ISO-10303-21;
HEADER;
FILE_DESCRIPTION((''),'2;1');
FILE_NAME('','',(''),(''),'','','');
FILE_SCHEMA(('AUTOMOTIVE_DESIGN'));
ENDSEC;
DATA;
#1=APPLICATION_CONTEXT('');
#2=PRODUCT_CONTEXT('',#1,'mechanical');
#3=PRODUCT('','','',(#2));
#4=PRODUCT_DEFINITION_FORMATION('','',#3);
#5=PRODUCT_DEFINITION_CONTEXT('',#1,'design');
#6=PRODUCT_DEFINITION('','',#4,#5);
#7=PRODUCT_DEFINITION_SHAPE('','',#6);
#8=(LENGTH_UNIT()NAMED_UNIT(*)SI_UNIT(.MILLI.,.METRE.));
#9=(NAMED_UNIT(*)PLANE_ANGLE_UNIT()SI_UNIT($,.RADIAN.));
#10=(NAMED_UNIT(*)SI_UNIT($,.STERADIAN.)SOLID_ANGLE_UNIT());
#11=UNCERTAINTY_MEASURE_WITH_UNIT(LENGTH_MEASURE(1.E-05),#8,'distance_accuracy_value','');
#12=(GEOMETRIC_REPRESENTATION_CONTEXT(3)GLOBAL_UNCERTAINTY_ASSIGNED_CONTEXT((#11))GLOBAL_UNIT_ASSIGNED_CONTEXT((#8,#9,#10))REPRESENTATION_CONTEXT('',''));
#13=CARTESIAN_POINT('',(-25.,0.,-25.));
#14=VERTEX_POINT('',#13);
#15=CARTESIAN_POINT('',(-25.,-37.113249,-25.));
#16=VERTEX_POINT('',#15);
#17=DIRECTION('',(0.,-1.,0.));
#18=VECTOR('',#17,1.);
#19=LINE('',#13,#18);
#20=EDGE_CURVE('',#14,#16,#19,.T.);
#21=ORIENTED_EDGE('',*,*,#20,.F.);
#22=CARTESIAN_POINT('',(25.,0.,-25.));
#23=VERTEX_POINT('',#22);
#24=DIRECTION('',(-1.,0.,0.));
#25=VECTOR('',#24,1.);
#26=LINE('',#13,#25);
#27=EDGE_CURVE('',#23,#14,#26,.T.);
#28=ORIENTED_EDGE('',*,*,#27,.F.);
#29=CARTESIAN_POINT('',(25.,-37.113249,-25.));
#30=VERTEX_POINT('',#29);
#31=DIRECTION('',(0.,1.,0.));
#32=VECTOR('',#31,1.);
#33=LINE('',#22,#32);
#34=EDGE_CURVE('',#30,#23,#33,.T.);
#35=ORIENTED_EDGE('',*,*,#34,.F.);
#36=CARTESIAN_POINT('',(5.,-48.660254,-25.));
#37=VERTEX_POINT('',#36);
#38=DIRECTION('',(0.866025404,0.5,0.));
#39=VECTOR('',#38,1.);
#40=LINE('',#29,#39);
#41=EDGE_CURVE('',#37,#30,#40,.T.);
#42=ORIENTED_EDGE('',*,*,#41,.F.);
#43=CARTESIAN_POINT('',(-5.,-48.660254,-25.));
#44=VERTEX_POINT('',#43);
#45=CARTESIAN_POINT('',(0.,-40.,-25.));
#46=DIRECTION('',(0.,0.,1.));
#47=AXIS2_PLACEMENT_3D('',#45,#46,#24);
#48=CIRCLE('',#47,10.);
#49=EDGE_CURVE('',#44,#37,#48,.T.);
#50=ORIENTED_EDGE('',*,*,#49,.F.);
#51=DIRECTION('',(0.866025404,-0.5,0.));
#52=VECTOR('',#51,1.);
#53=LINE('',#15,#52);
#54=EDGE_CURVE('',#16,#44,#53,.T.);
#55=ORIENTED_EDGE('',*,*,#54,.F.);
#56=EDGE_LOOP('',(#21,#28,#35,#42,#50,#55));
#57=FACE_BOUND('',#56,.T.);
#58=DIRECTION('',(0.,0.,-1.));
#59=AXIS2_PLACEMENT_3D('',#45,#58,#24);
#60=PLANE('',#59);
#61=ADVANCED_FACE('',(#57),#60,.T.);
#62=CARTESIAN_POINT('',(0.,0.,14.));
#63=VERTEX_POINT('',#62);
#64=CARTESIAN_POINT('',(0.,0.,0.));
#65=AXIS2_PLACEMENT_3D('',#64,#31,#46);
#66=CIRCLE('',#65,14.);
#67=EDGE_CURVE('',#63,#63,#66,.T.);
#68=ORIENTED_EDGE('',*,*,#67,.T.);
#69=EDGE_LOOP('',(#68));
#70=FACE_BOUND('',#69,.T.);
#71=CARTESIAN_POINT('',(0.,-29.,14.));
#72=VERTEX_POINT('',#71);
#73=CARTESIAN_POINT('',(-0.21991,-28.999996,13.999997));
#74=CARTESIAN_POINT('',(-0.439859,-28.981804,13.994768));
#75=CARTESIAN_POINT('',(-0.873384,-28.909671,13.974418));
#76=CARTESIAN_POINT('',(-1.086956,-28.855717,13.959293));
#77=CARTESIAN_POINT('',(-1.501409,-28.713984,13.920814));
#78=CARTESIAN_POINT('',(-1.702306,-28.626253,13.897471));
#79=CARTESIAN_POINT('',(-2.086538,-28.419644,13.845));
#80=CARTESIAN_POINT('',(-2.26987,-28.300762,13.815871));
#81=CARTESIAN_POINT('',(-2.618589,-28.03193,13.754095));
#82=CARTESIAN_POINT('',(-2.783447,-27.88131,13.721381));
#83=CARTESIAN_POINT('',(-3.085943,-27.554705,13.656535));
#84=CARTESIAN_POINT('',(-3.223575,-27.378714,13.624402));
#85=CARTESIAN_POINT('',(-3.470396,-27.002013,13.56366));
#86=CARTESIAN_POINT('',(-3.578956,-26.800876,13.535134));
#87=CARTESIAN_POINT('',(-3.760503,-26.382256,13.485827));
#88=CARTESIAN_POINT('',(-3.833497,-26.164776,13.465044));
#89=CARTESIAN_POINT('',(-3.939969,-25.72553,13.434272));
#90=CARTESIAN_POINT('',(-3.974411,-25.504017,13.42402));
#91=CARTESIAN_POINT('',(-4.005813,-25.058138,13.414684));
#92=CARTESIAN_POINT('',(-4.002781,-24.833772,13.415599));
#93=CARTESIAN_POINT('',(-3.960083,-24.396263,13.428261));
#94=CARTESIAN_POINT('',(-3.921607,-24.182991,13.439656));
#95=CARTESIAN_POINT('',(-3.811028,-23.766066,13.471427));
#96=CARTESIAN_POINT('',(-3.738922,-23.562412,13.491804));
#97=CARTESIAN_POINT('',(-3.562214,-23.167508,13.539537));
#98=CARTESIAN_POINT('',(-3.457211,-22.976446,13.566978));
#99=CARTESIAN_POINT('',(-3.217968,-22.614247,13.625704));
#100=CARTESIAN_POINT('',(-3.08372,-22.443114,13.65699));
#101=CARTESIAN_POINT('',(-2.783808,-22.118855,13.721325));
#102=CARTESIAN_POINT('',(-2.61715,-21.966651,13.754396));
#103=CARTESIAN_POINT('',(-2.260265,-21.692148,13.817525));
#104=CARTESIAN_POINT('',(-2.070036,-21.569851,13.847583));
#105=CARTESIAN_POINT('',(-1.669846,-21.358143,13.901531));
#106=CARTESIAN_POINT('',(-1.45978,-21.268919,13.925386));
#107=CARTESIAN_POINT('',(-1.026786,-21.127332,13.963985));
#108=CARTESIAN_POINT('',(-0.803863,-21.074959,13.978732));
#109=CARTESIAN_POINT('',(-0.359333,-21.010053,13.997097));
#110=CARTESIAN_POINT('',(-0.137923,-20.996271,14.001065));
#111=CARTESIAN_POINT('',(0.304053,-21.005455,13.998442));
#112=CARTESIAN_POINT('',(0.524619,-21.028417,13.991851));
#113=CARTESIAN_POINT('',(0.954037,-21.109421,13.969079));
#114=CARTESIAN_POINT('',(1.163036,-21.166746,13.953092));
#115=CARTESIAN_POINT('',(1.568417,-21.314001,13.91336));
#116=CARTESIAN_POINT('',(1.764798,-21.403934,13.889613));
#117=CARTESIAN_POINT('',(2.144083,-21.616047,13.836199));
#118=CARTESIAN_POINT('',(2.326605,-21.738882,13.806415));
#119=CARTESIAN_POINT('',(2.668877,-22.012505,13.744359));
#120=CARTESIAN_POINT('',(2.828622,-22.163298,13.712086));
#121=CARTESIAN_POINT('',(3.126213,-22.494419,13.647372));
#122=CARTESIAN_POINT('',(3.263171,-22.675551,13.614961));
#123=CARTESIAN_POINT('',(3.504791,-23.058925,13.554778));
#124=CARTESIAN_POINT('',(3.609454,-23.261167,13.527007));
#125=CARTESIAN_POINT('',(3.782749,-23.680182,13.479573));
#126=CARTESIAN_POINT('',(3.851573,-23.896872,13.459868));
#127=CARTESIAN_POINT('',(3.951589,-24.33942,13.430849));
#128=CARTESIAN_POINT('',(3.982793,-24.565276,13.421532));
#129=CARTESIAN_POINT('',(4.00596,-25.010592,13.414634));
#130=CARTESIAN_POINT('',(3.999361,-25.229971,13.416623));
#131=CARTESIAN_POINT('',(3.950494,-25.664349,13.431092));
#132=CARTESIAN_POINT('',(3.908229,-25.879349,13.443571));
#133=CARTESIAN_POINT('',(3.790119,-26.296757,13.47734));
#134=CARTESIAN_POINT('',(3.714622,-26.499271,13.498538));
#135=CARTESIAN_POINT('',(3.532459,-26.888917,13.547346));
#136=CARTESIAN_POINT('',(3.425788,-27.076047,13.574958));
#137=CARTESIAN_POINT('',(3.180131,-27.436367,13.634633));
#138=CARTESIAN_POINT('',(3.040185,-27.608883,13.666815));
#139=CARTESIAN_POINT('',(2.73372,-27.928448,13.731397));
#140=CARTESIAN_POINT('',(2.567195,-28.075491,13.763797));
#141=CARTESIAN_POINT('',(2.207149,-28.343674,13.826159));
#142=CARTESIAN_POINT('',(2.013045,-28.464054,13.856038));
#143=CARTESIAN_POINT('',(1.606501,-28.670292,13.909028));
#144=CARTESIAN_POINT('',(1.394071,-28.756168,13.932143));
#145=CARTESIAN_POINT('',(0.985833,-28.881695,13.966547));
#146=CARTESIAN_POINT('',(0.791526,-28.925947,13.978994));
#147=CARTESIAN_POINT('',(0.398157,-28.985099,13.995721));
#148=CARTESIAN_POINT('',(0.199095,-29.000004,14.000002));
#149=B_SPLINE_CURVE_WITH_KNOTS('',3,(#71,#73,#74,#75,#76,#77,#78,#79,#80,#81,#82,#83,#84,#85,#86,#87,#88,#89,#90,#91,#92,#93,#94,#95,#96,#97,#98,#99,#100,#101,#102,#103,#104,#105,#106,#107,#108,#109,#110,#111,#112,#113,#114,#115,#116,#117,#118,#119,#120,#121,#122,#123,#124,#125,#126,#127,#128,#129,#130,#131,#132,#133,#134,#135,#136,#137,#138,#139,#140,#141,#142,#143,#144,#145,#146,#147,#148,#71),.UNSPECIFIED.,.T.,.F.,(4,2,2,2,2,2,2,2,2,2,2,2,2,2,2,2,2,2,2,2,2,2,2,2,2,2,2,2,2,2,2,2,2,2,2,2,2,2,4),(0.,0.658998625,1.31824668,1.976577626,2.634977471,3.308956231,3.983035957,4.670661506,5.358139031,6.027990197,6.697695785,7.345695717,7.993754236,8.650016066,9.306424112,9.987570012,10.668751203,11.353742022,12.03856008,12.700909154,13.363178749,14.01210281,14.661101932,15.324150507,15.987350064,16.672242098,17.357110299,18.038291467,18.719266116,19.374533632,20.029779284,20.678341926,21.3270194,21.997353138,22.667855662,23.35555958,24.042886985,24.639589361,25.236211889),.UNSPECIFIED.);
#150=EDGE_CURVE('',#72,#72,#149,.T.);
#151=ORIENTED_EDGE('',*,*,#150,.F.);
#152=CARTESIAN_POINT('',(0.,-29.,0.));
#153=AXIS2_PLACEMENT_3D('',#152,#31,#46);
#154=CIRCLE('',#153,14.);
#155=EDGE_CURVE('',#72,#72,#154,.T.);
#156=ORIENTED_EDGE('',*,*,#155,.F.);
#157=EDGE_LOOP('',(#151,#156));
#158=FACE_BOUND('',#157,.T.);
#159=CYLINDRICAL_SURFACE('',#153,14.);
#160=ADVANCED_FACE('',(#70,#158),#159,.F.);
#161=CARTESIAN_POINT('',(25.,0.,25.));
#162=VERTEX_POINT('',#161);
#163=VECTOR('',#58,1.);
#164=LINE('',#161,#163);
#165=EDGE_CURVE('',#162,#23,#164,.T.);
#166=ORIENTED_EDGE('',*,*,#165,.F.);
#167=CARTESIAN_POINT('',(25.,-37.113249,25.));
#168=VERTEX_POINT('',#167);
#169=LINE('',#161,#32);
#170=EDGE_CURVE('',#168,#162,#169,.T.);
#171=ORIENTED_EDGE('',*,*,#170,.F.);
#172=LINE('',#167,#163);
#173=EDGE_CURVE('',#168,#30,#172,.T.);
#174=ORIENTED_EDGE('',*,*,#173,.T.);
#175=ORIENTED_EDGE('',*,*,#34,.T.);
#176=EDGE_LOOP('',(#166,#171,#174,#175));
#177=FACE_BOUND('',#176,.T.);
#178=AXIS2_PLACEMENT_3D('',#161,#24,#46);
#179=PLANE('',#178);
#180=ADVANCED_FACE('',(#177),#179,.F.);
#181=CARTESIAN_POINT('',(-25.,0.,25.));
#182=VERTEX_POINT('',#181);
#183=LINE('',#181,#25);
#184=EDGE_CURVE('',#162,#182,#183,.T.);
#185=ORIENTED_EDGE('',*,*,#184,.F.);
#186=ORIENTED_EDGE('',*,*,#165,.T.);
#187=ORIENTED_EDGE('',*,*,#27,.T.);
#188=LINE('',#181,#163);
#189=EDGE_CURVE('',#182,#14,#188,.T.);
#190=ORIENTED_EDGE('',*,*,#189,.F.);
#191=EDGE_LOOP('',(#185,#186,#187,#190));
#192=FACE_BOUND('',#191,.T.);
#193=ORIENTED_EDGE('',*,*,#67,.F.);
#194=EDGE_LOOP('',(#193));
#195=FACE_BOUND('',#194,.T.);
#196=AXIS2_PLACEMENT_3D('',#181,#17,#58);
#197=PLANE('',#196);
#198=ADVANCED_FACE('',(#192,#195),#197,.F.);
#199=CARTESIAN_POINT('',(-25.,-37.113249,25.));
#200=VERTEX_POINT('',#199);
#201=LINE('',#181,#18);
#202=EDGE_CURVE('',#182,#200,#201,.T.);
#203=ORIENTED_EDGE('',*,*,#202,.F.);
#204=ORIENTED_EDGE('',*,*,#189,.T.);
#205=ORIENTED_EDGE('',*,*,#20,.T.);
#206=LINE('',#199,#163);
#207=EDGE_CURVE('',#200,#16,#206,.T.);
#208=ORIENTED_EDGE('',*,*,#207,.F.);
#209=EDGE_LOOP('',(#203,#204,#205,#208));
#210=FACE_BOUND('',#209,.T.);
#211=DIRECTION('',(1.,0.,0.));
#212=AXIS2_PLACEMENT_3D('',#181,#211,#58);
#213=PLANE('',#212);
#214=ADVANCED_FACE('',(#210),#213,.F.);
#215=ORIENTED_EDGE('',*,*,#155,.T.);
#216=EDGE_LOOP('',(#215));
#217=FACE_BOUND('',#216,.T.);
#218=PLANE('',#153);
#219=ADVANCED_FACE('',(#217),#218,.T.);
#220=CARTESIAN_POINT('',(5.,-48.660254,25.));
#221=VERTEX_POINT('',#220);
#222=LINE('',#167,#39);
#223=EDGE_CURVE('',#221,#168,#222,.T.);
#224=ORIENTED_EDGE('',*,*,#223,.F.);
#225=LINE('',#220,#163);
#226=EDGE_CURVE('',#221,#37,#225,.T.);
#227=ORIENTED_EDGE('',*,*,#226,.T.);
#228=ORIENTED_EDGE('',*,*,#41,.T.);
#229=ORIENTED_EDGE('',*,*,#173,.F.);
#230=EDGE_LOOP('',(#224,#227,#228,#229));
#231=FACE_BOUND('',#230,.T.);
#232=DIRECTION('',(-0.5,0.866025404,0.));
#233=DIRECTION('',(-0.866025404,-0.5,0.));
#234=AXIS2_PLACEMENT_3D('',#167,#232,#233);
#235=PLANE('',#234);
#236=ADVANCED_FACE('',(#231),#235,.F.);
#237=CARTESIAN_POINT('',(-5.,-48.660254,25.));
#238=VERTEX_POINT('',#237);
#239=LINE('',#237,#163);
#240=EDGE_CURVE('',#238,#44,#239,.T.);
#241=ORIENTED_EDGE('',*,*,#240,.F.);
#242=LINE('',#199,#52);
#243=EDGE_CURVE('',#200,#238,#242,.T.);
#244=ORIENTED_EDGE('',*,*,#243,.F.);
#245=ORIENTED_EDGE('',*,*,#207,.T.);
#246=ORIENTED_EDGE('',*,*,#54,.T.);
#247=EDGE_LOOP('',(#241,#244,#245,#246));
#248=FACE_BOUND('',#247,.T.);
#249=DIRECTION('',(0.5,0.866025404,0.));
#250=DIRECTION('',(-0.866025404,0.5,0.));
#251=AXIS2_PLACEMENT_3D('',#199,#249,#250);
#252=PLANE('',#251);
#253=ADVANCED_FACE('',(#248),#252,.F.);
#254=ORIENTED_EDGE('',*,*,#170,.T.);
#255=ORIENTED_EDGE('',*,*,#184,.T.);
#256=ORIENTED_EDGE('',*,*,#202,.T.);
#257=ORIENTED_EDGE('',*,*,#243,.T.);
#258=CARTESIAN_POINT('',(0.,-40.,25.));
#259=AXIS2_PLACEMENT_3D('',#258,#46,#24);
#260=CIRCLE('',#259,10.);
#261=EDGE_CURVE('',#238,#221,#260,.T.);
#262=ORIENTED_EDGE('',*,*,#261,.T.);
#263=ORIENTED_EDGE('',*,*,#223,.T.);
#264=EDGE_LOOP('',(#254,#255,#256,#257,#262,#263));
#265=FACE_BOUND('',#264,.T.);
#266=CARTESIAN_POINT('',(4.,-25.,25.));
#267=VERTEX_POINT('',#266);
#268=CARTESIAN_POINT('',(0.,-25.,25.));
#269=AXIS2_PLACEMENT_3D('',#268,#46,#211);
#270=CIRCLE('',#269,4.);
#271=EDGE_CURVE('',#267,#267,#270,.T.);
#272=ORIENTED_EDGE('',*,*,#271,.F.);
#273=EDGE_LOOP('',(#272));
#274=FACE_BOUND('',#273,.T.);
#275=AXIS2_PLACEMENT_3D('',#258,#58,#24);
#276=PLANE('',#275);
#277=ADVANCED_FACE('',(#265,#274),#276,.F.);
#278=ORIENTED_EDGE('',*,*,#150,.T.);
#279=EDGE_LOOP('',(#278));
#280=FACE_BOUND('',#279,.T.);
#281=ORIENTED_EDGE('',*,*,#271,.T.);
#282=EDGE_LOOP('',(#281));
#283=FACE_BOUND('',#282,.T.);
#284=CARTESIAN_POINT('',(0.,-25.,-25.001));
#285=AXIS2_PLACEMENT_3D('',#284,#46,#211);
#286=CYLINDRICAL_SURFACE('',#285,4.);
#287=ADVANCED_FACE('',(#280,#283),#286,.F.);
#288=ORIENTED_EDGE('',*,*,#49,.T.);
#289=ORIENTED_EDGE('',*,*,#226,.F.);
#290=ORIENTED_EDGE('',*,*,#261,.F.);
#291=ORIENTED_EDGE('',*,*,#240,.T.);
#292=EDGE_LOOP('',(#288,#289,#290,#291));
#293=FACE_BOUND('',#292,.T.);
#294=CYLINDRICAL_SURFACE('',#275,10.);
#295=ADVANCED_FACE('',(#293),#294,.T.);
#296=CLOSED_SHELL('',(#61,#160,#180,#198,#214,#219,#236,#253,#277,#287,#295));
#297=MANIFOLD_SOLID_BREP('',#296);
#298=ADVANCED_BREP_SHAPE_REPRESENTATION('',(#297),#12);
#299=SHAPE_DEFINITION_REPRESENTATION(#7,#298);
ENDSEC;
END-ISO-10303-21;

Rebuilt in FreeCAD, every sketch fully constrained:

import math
import FreeCAD as App
import Part
import Sketcher
Q = App.Units.Quantity

doc = App.newDocument("Part")
body = doc.addObject("PartDesign::Body", "Body")

sketch1 = body.newObject("Sketcher::SketchObject", "Sketch")
sketch1.AttachmentSupport = (doc.getObject("XY_Plane"), [""])
sketch1.MapMode = "FlatFace"
sketch1.addGeometry(Part.LineSegment(App.Vector(25, 0, 0), App.Vector(-25, 0, 0)), False)
sketch1.addGeometry(Part.LineSegment(App.Vector(-25, 0, 0), App.Vector(-25, -37, 0)), False)
sketch1.addGeometry(Part.LineSegment(App.Vector(-25, -37, 0), App.Vector(-5, -49, 0)), False)
sketch1.addGeometry(Part.ArcOfCircle(Part.Circle(App.Vector(0, -40, 0), App.Vector(0, 0, 1), 10), math.radians(-120), math.radians(-60)), False)
sketch1.addGeometry(Part.LineSegment(App.Vector(5, -49, 0), App.Vector(25, -37, 0)), False)
sketch1.addGeometry(Part.LineSegment(App.Vector(25, -37, 0), App.Vector(25, 0, 0)), False)
sketch1.addConstraint(Sketcher.Constraint("Coincident", 0, 2, 1, 1))
sketch1.addConstraint(Sketcher.Constraint("Coincident", 1, 2, 2, 1))
sketch1.addConstraint(Sketcher.Constraint("Tangent", 2, 2, 3, 1))
sketch1.addConstraint(Sketcher.Constraint("Tangent", 3, 2, 4, 1))
sketch1.addConstraint(Sketcher.Constraint("Coincident", 4, 2, 5, 1))
sketch1.addConstraint(Sketcher.Constraint("Coincident", 5, 2, 0, 1))
sketch1.addConstraint(Sketcher.Constraint("Horizontal", 0))
sketch1.addConstraint(Sketcher.Constraint("Vertical", 1))
sketch1.addConstraint(Sketcher.Constraint("Vertical", 5))
sketch1.addConstraint(Sketcher.Constraint("Symmetric", 0, 2, 5, 2, -1, 1))
sketch1.addConstraint(Sketcher.Constraint("Symmetric", 2, 2, 3, 2, -2))
sketch1.addConstraint(Sketcher.Constraint("Radius", 3, Q("10 mm")))
sketch1.addConstraint(Sketcher.Constraint("DistanceX", 0, 2, 0, 1, Q("50 mm")))
sketch1.addConstraint(Sketcher.Constraint("Angle", 2, Q("-30 deg")))
sketch1.addConstraint(Sketcher.Constraint("DistanceY", 3, 3, -1, 1, Q("40 mm")))
pad1 = body.newObject("PartDesign::Pad", "Pad")
pad1.Profile = sketch1
pad1.Length = 50
pad1.Midplane = True

sketch2 = body.newObject("Sketcher::SketchObject", "Sketch001")
sketch2.AttachmentSupport = (doc.getObject("XZ_Plane"), [""])
sketch2.MapMode = "FlatFace"
sketch2.addGeometry(Part.Circle(App.Vector(0, 0, 0), App.Vector(0, 0, 1), 14), False)
sketch2.addConstraint(Sketcher.Constraint("Coincident", 0, 3, -1, 1))
sketch2.addConstraint(Sketcher.Constraint("Diameter", 0, Q("28 mm")))
pocket1 = body.newObject("PartDesign::Pocket", "Pocket")
pocket1.Profile = sketch2
pocket1.Length = 29
pocket1.Reversed = True

sketch3 = body.newObject("Sketcher::SketchObject", "Sketch002")
sketch3.AttachmentSupport = (doc.getObject("XY_Plane"), [""])
sketch3.MapMode = "FlatFace"
sketch3.AttachmentOffset = App.Placement(App.Vector(0, 0, 25), App.Rotation())
sketch3.addGeometry(Part.Circle(App.Vector(0, -25, 0), App.Vector(0, 0, 1), 4), False)
sketch3.addConstraint(Sketcher.Constraint("PointOnObject", 0, 3, -2))
sketch3.addConstraint(Sketcher.Constraint("Diameter", 0, Q("8 mm")))
sketch3.addConstraint(Sketcher.Constraint("DistanceY", 0, 3, -1, 1, Q("25 mm")))
pocket2 = body.newObject("PartDesign::Pocket", "Pocket001")
pocket2.Profile = sketch3
pocket2.Type = "UpToFirst"

doc.recompute()
